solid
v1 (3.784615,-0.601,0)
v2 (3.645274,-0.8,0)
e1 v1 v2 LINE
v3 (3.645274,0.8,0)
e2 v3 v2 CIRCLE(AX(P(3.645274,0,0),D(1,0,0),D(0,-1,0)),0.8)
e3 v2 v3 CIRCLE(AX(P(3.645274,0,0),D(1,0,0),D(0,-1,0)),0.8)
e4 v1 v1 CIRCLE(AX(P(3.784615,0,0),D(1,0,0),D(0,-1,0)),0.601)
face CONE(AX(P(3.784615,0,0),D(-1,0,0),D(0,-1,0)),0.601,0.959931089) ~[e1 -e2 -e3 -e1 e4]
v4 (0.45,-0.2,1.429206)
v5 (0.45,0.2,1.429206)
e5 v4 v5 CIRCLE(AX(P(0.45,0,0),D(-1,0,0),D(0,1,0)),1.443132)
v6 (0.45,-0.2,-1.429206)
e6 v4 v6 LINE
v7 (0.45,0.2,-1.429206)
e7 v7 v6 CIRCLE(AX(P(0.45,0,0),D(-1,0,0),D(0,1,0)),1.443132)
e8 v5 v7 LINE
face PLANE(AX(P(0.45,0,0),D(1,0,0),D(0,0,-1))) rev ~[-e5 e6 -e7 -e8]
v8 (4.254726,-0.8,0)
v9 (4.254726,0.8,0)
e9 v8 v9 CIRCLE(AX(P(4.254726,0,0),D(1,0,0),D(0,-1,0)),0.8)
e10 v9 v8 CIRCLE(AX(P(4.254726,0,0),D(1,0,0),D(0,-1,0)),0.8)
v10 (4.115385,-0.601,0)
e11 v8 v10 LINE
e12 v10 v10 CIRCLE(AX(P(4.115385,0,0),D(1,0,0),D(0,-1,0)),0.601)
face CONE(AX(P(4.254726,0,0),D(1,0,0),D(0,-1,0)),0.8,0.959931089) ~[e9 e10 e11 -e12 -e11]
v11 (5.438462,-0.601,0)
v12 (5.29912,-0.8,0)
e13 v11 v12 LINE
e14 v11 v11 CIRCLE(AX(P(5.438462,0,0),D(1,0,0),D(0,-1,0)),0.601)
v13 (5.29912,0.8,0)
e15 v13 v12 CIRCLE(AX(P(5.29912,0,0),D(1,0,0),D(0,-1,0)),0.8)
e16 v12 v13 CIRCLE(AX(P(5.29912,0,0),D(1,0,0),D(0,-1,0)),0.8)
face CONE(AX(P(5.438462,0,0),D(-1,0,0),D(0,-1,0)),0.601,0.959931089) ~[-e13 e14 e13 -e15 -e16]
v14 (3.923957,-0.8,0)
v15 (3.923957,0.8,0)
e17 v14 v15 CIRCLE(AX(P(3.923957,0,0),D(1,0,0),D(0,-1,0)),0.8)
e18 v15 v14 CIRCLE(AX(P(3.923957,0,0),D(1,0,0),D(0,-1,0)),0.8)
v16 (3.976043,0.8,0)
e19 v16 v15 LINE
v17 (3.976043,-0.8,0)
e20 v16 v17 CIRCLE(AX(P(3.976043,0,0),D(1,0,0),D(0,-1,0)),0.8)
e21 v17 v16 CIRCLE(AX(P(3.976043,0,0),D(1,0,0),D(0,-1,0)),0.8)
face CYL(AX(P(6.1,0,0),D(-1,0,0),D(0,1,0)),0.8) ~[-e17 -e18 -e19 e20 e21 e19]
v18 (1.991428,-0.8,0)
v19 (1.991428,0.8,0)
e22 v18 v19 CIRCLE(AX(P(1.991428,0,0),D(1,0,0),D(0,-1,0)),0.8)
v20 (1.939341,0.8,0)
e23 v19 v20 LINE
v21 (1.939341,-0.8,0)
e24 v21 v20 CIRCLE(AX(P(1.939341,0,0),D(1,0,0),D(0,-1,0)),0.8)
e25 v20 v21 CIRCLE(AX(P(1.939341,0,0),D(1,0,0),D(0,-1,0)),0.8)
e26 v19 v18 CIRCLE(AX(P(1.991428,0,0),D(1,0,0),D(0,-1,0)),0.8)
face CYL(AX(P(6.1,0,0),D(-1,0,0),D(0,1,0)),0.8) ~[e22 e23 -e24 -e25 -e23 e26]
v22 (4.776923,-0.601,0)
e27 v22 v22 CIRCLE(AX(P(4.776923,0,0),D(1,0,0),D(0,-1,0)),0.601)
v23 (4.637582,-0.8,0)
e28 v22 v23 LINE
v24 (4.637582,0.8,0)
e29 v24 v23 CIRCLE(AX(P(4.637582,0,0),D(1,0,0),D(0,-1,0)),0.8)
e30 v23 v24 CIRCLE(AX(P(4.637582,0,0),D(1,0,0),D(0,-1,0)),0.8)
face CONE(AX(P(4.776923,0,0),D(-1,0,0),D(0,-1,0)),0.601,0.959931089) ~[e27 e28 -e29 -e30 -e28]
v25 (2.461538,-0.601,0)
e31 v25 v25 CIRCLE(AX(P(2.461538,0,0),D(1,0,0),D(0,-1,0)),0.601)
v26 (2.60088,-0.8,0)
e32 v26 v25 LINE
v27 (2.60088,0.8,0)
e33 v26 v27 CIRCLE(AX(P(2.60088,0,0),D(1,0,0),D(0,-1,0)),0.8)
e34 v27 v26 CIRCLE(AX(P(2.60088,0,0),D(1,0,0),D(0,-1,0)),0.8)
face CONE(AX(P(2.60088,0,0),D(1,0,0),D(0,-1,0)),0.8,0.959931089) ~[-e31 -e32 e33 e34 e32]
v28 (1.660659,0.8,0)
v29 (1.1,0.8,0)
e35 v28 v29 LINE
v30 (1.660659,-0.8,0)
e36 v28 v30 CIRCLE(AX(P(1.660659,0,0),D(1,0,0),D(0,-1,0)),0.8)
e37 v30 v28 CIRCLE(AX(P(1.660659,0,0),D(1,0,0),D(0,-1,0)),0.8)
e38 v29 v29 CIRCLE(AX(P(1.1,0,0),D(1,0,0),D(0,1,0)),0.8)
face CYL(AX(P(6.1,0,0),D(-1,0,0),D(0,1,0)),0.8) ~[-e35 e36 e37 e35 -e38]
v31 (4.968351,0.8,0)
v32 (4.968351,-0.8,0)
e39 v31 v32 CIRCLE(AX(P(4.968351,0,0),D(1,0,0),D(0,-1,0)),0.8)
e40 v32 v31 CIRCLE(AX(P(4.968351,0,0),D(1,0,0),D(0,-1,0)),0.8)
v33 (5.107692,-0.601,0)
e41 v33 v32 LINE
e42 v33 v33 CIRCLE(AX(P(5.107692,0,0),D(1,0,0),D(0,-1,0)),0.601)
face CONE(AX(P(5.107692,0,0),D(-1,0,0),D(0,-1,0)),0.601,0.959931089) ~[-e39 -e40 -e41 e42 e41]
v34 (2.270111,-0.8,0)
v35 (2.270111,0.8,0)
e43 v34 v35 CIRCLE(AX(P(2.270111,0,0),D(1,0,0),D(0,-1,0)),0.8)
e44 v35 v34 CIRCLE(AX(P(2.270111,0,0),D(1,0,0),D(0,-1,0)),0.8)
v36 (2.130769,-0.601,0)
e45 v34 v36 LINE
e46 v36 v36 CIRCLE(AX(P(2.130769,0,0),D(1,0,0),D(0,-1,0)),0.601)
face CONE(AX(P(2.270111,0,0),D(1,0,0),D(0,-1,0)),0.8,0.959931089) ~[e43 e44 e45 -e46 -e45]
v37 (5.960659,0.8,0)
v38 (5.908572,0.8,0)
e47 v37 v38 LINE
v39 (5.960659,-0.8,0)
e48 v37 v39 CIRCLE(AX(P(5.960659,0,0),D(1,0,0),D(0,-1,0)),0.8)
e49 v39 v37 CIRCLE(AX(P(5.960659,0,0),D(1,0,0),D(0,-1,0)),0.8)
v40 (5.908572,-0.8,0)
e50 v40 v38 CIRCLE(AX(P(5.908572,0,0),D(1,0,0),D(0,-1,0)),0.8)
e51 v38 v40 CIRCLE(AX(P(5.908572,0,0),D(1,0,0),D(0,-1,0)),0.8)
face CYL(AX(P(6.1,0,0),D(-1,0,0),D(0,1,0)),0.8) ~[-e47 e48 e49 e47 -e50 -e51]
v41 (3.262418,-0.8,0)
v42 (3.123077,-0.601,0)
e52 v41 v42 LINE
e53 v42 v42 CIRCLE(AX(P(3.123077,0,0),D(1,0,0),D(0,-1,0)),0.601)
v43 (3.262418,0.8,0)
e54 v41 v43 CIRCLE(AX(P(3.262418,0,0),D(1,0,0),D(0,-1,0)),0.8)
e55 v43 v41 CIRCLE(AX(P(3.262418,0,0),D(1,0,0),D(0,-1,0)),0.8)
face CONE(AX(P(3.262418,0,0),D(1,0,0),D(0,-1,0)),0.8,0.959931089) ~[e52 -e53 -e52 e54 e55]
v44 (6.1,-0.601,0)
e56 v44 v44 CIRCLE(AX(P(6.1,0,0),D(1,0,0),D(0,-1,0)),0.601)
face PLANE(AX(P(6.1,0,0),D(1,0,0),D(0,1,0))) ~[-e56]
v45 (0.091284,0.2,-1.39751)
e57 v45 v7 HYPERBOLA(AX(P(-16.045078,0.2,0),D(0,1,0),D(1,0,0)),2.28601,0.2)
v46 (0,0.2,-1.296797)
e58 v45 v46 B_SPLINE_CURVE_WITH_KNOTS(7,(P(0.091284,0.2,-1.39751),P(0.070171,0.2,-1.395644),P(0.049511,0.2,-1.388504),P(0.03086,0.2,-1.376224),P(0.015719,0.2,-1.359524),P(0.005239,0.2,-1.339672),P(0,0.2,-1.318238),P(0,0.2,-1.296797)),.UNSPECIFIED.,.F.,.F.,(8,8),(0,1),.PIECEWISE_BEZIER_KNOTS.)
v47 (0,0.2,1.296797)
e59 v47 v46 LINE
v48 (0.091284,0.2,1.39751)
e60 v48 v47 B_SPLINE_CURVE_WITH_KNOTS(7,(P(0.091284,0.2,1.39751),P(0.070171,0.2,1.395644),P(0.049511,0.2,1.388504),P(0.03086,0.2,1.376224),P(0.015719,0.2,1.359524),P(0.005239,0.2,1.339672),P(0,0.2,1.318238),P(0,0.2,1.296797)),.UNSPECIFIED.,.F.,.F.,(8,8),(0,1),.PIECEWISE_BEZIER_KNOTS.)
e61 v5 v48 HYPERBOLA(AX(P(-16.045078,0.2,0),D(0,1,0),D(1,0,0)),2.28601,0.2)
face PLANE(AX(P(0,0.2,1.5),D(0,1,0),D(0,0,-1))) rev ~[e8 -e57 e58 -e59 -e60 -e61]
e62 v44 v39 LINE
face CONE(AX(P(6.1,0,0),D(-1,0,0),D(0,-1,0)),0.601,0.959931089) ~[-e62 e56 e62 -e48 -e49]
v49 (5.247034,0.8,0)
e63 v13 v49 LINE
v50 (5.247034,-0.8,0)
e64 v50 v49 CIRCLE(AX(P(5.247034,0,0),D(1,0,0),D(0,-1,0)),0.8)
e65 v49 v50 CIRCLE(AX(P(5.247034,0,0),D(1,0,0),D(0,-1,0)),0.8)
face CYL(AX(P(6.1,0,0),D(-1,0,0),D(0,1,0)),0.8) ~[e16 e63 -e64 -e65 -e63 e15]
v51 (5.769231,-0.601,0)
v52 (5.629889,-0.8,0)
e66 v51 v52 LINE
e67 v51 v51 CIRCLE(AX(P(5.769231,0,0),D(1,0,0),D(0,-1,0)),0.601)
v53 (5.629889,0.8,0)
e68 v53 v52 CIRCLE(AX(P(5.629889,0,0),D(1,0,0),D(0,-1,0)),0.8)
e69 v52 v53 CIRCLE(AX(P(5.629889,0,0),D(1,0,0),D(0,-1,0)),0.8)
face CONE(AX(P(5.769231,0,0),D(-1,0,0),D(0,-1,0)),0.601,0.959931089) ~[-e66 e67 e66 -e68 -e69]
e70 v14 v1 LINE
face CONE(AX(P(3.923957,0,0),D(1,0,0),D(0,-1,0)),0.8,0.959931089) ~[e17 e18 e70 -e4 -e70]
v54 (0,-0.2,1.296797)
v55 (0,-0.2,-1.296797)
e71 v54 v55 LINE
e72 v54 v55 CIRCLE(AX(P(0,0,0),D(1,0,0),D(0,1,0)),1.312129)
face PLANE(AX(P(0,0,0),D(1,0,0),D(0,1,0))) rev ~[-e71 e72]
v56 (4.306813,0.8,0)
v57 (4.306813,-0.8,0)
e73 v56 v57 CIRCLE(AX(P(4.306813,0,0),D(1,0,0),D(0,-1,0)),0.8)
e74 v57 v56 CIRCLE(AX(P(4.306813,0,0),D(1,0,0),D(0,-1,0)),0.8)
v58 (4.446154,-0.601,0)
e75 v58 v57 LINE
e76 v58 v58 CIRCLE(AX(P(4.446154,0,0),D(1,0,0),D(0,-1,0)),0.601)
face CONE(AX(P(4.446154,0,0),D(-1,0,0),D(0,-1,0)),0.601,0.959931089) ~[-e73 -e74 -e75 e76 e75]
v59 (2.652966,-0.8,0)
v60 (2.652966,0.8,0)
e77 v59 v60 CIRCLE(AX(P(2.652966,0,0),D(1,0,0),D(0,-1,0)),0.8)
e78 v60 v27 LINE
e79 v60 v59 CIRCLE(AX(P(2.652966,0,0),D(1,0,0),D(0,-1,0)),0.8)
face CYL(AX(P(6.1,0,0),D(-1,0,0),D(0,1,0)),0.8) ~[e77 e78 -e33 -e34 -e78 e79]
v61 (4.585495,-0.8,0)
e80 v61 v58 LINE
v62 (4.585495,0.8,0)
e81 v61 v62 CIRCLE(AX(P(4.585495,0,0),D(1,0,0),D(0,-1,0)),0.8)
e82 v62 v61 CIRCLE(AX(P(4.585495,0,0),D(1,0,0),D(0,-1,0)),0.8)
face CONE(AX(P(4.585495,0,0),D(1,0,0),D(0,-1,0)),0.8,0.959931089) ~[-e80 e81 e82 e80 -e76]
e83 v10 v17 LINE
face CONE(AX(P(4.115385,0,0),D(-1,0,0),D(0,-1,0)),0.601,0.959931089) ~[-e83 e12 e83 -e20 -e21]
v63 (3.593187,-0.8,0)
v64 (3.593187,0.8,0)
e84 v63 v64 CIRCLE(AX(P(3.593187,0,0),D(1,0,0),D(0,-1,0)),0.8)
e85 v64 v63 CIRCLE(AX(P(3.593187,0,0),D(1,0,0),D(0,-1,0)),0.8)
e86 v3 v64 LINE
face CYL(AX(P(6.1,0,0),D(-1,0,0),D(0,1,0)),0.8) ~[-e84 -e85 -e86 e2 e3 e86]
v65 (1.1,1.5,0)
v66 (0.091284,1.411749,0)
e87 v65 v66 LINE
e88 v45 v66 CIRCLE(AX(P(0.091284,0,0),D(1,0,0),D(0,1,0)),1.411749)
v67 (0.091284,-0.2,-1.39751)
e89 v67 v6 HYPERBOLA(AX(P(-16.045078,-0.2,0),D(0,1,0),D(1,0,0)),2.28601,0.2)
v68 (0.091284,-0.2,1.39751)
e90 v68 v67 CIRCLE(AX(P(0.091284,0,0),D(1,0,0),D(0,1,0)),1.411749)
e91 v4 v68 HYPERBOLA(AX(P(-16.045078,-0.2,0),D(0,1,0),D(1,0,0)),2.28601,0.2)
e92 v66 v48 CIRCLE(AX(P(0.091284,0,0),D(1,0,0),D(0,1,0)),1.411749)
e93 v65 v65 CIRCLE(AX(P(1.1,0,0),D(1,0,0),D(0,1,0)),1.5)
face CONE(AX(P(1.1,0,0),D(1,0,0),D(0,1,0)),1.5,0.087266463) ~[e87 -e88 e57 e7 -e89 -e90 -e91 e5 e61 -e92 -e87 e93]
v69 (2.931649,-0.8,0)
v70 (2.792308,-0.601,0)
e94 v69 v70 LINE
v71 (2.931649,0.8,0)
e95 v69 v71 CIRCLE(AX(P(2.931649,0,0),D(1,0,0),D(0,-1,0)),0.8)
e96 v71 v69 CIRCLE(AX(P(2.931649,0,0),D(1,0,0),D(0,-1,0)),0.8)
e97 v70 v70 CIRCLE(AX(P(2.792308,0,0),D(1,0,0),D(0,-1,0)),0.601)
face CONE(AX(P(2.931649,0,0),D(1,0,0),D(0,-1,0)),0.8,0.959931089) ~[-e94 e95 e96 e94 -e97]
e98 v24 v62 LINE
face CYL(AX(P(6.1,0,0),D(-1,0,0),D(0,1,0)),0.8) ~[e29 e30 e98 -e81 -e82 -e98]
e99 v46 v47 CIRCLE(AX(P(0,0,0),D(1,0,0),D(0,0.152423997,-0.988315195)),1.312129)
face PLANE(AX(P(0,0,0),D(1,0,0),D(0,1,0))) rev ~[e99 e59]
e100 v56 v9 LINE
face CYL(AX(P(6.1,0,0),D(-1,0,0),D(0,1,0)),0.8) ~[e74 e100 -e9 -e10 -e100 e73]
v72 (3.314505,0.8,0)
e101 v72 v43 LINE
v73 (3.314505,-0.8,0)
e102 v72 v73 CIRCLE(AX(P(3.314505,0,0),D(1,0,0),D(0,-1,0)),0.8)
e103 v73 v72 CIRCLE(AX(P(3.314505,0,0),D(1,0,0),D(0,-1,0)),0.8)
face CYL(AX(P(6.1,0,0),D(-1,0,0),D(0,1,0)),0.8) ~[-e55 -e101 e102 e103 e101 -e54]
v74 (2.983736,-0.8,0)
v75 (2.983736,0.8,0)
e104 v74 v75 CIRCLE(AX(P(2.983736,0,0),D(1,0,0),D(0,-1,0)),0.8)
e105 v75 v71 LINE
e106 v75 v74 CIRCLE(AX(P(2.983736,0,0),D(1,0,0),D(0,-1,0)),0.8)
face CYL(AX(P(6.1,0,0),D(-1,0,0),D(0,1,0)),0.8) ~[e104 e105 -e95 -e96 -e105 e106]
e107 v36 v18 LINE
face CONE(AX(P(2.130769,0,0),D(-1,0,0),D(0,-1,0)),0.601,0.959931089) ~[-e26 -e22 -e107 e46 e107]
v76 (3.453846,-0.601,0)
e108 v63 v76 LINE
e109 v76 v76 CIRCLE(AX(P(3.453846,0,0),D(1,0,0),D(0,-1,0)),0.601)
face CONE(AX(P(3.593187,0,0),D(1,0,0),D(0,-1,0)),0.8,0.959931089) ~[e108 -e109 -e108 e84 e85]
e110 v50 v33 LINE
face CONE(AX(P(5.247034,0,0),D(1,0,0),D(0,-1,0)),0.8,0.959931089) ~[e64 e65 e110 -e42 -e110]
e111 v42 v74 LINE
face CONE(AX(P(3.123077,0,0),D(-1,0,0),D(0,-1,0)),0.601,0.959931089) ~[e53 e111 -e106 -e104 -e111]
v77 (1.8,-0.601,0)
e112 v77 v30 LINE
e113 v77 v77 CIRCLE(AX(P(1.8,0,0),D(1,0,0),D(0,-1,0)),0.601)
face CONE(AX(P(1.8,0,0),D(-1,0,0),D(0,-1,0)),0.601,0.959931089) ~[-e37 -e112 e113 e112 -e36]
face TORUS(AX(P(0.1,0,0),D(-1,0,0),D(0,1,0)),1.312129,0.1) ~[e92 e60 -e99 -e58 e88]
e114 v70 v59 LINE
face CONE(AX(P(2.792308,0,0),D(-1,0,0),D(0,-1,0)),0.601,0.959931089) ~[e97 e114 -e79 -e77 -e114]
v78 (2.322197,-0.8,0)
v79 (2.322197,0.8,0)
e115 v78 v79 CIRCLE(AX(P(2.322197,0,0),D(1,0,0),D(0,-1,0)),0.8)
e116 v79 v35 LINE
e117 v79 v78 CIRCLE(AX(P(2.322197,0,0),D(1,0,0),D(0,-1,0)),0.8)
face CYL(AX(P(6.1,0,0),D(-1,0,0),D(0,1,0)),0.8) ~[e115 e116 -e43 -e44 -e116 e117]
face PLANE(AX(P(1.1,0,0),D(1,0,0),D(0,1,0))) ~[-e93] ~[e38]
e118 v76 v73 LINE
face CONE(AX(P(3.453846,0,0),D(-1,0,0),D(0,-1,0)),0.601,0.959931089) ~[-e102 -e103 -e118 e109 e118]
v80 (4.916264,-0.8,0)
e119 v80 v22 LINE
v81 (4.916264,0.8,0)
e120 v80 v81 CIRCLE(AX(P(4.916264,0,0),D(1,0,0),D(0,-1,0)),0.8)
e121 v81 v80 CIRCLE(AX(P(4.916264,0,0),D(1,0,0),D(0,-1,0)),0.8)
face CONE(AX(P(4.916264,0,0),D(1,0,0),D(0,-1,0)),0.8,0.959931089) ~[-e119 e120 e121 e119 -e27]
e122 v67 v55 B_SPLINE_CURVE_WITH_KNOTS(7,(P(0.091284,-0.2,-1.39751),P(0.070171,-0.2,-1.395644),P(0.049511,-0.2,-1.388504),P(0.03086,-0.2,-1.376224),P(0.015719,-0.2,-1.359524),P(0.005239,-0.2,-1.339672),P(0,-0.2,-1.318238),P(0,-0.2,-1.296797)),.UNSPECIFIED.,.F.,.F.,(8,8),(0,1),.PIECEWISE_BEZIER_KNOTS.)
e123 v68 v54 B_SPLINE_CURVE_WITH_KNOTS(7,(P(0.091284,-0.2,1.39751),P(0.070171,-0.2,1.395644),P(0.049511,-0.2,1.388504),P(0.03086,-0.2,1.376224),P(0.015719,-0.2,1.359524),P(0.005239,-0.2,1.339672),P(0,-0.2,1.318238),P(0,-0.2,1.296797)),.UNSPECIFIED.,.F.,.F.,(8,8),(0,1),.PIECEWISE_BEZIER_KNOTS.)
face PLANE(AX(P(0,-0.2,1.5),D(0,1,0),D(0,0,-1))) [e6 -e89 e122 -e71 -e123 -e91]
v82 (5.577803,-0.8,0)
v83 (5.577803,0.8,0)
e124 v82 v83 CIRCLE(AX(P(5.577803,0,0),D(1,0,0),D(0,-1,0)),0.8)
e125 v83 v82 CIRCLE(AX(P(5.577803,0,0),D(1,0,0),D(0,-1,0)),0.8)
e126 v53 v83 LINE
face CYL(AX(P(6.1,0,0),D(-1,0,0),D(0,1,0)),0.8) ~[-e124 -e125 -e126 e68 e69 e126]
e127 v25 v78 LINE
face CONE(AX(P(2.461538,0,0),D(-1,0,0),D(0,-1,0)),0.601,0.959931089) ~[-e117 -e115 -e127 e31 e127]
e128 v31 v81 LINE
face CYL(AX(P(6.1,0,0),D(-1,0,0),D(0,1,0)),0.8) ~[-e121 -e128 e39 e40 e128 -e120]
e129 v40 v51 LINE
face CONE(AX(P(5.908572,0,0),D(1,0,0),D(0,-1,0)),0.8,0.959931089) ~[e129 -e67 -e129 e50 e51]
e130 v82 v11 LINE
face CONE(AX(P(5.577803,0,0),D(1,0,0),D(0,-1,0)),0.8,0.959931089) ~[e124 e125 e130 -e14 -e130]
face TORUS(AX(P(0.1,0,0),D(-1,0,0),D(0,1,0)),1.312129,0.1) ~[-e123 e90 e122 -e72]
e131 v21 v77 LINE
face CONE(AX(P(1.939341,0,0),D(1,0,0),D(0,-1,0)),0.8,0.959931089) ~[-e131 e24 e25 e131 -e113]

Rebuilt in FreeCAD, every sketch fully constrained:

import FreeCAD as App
import Part
import Sketcher

V = App.Vector
Q = App.Units.Quantity


def edges_at(feature, points):
    """Names of the edges that pass closest to the given points."""
    edges = feature.Shape.Edges
    near = lambda p: min(range(len(edges)), key=lambda i: edges[i].distToShape(Part.Vertex(*p))[0])
    return sorted({f"Edge{near(p) + 1}" for p in points})

doc = App.newDocument("Part")
body = doc.addObject("PartDesign::Body", "Body")

sketch1 = doc.addObject("Sketcher::SketchObject", "Sketch")
body.addObject(sketch1)
sketch1.AttachmentSupport = (doc.XY_Plane, [""])
sketch1.MapMode = "FlatFace"
sketch1.addGeometry([
    Part.LineSegment(V(1.1, 0.8, 0), V(1.1, 1.5, 0)),
    Part.LineSegment(V(1.1, 1.5, 0), V(0, 1.4, 0)),
    Part.LineSegment(V(0, 1.4, 0), V(0, 0, 0)),
    Part.LineSegment(V(0, 0, 0), V(6.1, 0, 0)),
    Part.LineSegment(V(6.1, 0, 0), V(6.1, 0.8, 0)),
    Part.LineSegment(V(6.1, 0.8, 0), V(1.1, 0.8, 0)),
], False)
sketch1.addConstraint([
    Sketcher.Constraint("Coincident", 0, 2, 1, 1),
    Sketcher.Constraint("Coincident", 1, 2, 2, 1),
    Sketcher.Constraint("Coincident", 2, 2, 3, 1),
    Sketcher.Constraint("Coincident", 3, 2, 4, 1),
    Sketcher.Constraint("Coincident", 4, 2, 5, 1),
    Sketcher.Constraint("Coincident", 5, 2, 0, 1),
    Sketcher.Constraint("Vertical", 0),
    Sketcher.Constraint("Vertical", 2),
    Sketcher.Constraint("Horizontal", 3),
    Sketcher.Constraint("Vertical", 4),
    Sketcher.Constraint("Horizontal", 5),
    Sketcher.Constraint("Coincident", 2, 2, -1, 1),
    Sketcher.Constraint("DistanceX", 5, 2, 5, 1, Q("5 mm")),
    Sketcher.Constraint("Angle", 1, Q("-175 deg")),
    Sketcher.Constraint("DistanceX", 3, 1, 3, 2, Q("6.1 mm")),
    Sketcher.Constraint("DistanceY", 0, 1, 0, 2, Q("0.7 mm")),
    Sketcher.Constraint("DistanceY", 4, 1, 4, 2, Q("0.8 mm")),
])
revolution = doc.addObject("PartDesign::Revolution", "Revolution")
body.addObject(revolution)
revolution.Profile = sketch1
revolution.ReferenceAxis = (sketch1, ["H_Axis"])
revolution.Angle = 360
doc.recompute()

fillet = doc.addObject("PartDesign::Fillet", "Fillet")
body.addObject(fillet)
fillet.Base = (revolution, edges_at(revolution, [(0, -1.404, 0)]))
fillet.Radius = 0.1

sketch2 = doc.addObject("Sketcher::SketchObject", "Sketch001")
body.addObject(sketch2)
sketch2.AttachmentSupport = (doc.YZ_Plane, [""])
sketch2.MapMode = "FlatFace"
sketch2.addGeometry([
    Part.LineSegment(V(0.2, 1.5, 0), V(-0.2, 1.5, 0)),
    Part.LineSegment(V(-0.2, 1.5, 0), V(-0.2, -1.5, 0)),
    Part.LineSegment(V(-0.2, -1.5, 0), V(0.2, -1.5, 0)),
    Part.LineSegment(V(0.2, -1.5, 0), V(0.2, 1.5, 0)),
], False)
sketch2.addConstraint([
    Sketcher.Constraint("Coincident", 0, 2, 1, 1),
    Sketcher.Constraint("Coincident", 1, 2, 2, 1),
    Sketcher.Constraint("Coincident", 2, 2, 3, 1),
    Sketcher.Constraint("Coincident", 3, 2, 0, 1),
    Sketcher.Constraint("Horizontal", 0),
    Sketcher.Constraint("Vertical", 1),
    Sketcher.Constraint("Horizontal", 2),
    Sketcher.Constraint("Vertical", 3),
    Sketcher.Constraint("Symmetric", 0, 2, 2, 2, -1, 1),
    Sketcher.Constraint("DistanceY", 1, 2, 1, 1, Q("3 mm")),
    Sketcher.Constraint("DistanceX", 0, 2, 0, 1, Q("0.4 mm")),
])
pocket1 = doc.addObject("PartDesign::Pocket", "Pocket")
body.addObject(pocket1)
pocket1.Profile = sketch2
pocket1.Length = 0.45
pocket1.Reversed = True

sketch3 = doc.addObject("Sketcher::SketchObject", "Sketch002")
body.addObject(sketch3)
sketch3.AttachmentSupport = (doc.XY_Plane, [""])
sketch3.MapMode = "FlatFace"
sketch3.addGeometry([
    Part.LineSegment(V(1.8, -0.6, 0), V(1.66, -0.8, 0)),
    Part.LineSegment(V(1.66, -0.8, 0), V(1.66, -1, 0)),
    Part.LineSegment(V(1.66, -1, 0), V(1.94, -1, 0)),
    Part.LineSegment(V(1.94, -1, 0), V(1.94, -0.8, 0)),
    Part.LineSegment(V(1.94, -0.8, 0), V(1.8, -0.6, 0)),
], False)
sketch3.addConstraint([
    Sketcher.Constraint("Coincident", 0, 2, 1, 1),
    Sketcher.Constraint("Coincident", 1, 2, 2, 1),
    Sketcher.Constraint("Coincident", 2, 2, 3, 1),
    Sketcher.Constraint("Coincident", 3, 2, 4, 1),
    Sketcher.Constraint("Coincident", 4, 2, 0, 1),
    Sketcher.Constraint("Vertical", 1),
    Sketcher.Constraint("Horizontal", 2),
    Sketcher.Constraint("Vertical", 3),
    Sketcher.Constraint("Horizontal", 0, 2, 3, 2),
    Sketcher.Constraint("Equal", 0, 4),
    Sketcher.Constraint("Angle", 0, Q("-125 deg")),
    Sketcher.Constraint("DistanceY", 1, 2, 1, 1, Q("0.2 mm")),
    Sketcher.Constraint("DistanceY", 1, 2, -1, 1, Q("1 mm")),
    Sketcher.Constraint("DistanceX", -1, 1, 4, 2, Q("1.8 mm")),
    Sketcher.Constraint("DistanceY", 4, 2, -1, 1, Q("0.601 mm")),
])
groove = doc.addObject("PartDesign::Groove", "Groove")
body.addObject(groove)
groove.Profile = sketch3
groove.ReferenceAxis = (sketch3, ["H_Axis"])
groove.Angle = 360
doc.recompute()

linearpattern = doc.addObject("PartDesign::LinearPattern", "LinearPattern")
body.addObject(linearpattern)
linearpattern.Originals = [groove]
linearpattern.Direction = (doc.X_Axis, [""])
linearpattern.Mode = "offset"
linearpattern.Offset = 0.330769
linearpattern.Occurrences = 14
body.Tip = linearpattern

doc.recompute()
